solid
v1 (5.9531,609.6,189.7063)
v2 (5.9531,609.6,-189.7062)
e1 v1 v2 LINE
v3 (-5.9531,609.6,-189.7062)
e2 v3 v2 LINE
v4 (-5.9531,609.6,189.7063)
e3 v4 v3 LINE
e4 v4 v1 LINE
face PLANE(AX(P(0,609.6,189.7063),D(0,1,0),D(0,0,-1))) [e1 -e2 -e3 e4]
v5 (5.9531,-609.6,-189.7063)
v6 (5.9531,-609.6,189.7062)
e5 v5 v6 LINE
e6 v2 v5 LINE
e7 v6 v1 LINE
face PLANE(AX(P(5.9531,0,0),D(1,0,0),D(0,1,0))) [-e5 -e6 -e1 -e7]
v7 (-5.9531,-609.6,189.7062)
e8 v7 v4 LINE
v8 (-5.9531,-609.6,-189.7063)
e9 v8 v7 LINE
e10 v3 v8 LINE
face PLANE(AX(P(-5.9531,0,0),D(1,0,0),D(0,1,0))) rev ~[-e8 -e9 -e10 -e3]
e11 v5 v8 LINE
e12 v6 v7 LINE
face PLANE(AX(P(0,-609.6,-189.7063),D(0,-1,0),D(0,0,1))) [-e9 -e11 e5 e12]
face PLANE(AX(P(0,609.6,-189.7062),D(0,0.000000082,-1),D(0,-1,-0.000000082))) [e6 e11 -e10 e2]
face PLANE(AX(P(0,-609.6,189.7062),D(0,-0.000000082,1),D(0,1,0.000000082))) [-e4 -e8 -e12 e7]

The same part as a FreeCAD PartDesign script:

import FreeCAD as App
import Part
import Sketcher
from FreeCAD import Vector
Q = App.Units.Quantity


def add_polygon(sketch, points):
    """Adds a closed chain of lines whose ends are joined by coincident constraints."""
    first, n = sketch.GeometryCount, len(points)
    for a, b in zip(points, points[1:] + points[:1]):
        sketch.addGeometry(Part.LineSegment(App.Vector(*a, 0), App.Vector(*b, 0)), False)
    for i in range(n):
        sketch.addConstraint(Sketcher.Constraint("Coincident", first + i, 2, first + (i + 1) % n, 1))

doc = App.newDocument("Part")
params = doc.addObject("Spreadsheet::Sheet", "Params")
for row, (alias, value) in enumerate([
    ("sketch1_width", "48 in"),
    ("sketch1_height", "14.9375 in"),
    ("pad1_length", "0.468748 in"),
], start=1):
    params.set(f"A{row}", alias)
    params.set(f"B{row}", "=" + value)
    params.setAlias(f"B{row}", alias)

body = doc.addObject("PartDesign::Body", "Body")

# Sketch on YZ plane
sketch1 = body.newObject("Sketcher::SketchObject", "Sketch")
sketch1.AttachmentSupport = (doc.getObject("YZ_Plane"), [""])
sketch1.MapMode = "FlatFace"
add_polygon(sketch1, [(-610, -190), (610, -190), (610, 190), (-610, 190)])  # lines 0-3
sketch1.addConstraint(Sketcher.Constraint("Horizontal", 0))
sketch1.addConstraint(Sketcher.Constraint("Vertical", 1))
sketch1.addConstraint(Sketcher.Constraint("Horizontal", 2))
sketch1.addConstraint(Sketcher.Constraint("Vertical", 3))
sketch1.addConstraint(Sketcher.Constraint("Symmetric", 0, 2, 2, 2, -1, 1))
sketch1.addConstraint(Sketcher.Constraint("DistanceX", 0, 1, 0, 2, Q("48 in")))
sketch1.addConstraint(Sketcher.Constraint("DistanceY", 1, 1, 1, 2, Q("14.9375 in")))
sketch1.setExpression("Constraints[9]", "Params.sketch1_width")
sketch1.setExpression("Constraints[10]", "Params.sketch1_height")
pad1 = body.newObject("PartDesign::Pad", "Pad")
pad1.Profile = sketch1
pad1.setExpression("Length", "Params.pad1_length")
pad1.Midplane = True

doc.recompute()
